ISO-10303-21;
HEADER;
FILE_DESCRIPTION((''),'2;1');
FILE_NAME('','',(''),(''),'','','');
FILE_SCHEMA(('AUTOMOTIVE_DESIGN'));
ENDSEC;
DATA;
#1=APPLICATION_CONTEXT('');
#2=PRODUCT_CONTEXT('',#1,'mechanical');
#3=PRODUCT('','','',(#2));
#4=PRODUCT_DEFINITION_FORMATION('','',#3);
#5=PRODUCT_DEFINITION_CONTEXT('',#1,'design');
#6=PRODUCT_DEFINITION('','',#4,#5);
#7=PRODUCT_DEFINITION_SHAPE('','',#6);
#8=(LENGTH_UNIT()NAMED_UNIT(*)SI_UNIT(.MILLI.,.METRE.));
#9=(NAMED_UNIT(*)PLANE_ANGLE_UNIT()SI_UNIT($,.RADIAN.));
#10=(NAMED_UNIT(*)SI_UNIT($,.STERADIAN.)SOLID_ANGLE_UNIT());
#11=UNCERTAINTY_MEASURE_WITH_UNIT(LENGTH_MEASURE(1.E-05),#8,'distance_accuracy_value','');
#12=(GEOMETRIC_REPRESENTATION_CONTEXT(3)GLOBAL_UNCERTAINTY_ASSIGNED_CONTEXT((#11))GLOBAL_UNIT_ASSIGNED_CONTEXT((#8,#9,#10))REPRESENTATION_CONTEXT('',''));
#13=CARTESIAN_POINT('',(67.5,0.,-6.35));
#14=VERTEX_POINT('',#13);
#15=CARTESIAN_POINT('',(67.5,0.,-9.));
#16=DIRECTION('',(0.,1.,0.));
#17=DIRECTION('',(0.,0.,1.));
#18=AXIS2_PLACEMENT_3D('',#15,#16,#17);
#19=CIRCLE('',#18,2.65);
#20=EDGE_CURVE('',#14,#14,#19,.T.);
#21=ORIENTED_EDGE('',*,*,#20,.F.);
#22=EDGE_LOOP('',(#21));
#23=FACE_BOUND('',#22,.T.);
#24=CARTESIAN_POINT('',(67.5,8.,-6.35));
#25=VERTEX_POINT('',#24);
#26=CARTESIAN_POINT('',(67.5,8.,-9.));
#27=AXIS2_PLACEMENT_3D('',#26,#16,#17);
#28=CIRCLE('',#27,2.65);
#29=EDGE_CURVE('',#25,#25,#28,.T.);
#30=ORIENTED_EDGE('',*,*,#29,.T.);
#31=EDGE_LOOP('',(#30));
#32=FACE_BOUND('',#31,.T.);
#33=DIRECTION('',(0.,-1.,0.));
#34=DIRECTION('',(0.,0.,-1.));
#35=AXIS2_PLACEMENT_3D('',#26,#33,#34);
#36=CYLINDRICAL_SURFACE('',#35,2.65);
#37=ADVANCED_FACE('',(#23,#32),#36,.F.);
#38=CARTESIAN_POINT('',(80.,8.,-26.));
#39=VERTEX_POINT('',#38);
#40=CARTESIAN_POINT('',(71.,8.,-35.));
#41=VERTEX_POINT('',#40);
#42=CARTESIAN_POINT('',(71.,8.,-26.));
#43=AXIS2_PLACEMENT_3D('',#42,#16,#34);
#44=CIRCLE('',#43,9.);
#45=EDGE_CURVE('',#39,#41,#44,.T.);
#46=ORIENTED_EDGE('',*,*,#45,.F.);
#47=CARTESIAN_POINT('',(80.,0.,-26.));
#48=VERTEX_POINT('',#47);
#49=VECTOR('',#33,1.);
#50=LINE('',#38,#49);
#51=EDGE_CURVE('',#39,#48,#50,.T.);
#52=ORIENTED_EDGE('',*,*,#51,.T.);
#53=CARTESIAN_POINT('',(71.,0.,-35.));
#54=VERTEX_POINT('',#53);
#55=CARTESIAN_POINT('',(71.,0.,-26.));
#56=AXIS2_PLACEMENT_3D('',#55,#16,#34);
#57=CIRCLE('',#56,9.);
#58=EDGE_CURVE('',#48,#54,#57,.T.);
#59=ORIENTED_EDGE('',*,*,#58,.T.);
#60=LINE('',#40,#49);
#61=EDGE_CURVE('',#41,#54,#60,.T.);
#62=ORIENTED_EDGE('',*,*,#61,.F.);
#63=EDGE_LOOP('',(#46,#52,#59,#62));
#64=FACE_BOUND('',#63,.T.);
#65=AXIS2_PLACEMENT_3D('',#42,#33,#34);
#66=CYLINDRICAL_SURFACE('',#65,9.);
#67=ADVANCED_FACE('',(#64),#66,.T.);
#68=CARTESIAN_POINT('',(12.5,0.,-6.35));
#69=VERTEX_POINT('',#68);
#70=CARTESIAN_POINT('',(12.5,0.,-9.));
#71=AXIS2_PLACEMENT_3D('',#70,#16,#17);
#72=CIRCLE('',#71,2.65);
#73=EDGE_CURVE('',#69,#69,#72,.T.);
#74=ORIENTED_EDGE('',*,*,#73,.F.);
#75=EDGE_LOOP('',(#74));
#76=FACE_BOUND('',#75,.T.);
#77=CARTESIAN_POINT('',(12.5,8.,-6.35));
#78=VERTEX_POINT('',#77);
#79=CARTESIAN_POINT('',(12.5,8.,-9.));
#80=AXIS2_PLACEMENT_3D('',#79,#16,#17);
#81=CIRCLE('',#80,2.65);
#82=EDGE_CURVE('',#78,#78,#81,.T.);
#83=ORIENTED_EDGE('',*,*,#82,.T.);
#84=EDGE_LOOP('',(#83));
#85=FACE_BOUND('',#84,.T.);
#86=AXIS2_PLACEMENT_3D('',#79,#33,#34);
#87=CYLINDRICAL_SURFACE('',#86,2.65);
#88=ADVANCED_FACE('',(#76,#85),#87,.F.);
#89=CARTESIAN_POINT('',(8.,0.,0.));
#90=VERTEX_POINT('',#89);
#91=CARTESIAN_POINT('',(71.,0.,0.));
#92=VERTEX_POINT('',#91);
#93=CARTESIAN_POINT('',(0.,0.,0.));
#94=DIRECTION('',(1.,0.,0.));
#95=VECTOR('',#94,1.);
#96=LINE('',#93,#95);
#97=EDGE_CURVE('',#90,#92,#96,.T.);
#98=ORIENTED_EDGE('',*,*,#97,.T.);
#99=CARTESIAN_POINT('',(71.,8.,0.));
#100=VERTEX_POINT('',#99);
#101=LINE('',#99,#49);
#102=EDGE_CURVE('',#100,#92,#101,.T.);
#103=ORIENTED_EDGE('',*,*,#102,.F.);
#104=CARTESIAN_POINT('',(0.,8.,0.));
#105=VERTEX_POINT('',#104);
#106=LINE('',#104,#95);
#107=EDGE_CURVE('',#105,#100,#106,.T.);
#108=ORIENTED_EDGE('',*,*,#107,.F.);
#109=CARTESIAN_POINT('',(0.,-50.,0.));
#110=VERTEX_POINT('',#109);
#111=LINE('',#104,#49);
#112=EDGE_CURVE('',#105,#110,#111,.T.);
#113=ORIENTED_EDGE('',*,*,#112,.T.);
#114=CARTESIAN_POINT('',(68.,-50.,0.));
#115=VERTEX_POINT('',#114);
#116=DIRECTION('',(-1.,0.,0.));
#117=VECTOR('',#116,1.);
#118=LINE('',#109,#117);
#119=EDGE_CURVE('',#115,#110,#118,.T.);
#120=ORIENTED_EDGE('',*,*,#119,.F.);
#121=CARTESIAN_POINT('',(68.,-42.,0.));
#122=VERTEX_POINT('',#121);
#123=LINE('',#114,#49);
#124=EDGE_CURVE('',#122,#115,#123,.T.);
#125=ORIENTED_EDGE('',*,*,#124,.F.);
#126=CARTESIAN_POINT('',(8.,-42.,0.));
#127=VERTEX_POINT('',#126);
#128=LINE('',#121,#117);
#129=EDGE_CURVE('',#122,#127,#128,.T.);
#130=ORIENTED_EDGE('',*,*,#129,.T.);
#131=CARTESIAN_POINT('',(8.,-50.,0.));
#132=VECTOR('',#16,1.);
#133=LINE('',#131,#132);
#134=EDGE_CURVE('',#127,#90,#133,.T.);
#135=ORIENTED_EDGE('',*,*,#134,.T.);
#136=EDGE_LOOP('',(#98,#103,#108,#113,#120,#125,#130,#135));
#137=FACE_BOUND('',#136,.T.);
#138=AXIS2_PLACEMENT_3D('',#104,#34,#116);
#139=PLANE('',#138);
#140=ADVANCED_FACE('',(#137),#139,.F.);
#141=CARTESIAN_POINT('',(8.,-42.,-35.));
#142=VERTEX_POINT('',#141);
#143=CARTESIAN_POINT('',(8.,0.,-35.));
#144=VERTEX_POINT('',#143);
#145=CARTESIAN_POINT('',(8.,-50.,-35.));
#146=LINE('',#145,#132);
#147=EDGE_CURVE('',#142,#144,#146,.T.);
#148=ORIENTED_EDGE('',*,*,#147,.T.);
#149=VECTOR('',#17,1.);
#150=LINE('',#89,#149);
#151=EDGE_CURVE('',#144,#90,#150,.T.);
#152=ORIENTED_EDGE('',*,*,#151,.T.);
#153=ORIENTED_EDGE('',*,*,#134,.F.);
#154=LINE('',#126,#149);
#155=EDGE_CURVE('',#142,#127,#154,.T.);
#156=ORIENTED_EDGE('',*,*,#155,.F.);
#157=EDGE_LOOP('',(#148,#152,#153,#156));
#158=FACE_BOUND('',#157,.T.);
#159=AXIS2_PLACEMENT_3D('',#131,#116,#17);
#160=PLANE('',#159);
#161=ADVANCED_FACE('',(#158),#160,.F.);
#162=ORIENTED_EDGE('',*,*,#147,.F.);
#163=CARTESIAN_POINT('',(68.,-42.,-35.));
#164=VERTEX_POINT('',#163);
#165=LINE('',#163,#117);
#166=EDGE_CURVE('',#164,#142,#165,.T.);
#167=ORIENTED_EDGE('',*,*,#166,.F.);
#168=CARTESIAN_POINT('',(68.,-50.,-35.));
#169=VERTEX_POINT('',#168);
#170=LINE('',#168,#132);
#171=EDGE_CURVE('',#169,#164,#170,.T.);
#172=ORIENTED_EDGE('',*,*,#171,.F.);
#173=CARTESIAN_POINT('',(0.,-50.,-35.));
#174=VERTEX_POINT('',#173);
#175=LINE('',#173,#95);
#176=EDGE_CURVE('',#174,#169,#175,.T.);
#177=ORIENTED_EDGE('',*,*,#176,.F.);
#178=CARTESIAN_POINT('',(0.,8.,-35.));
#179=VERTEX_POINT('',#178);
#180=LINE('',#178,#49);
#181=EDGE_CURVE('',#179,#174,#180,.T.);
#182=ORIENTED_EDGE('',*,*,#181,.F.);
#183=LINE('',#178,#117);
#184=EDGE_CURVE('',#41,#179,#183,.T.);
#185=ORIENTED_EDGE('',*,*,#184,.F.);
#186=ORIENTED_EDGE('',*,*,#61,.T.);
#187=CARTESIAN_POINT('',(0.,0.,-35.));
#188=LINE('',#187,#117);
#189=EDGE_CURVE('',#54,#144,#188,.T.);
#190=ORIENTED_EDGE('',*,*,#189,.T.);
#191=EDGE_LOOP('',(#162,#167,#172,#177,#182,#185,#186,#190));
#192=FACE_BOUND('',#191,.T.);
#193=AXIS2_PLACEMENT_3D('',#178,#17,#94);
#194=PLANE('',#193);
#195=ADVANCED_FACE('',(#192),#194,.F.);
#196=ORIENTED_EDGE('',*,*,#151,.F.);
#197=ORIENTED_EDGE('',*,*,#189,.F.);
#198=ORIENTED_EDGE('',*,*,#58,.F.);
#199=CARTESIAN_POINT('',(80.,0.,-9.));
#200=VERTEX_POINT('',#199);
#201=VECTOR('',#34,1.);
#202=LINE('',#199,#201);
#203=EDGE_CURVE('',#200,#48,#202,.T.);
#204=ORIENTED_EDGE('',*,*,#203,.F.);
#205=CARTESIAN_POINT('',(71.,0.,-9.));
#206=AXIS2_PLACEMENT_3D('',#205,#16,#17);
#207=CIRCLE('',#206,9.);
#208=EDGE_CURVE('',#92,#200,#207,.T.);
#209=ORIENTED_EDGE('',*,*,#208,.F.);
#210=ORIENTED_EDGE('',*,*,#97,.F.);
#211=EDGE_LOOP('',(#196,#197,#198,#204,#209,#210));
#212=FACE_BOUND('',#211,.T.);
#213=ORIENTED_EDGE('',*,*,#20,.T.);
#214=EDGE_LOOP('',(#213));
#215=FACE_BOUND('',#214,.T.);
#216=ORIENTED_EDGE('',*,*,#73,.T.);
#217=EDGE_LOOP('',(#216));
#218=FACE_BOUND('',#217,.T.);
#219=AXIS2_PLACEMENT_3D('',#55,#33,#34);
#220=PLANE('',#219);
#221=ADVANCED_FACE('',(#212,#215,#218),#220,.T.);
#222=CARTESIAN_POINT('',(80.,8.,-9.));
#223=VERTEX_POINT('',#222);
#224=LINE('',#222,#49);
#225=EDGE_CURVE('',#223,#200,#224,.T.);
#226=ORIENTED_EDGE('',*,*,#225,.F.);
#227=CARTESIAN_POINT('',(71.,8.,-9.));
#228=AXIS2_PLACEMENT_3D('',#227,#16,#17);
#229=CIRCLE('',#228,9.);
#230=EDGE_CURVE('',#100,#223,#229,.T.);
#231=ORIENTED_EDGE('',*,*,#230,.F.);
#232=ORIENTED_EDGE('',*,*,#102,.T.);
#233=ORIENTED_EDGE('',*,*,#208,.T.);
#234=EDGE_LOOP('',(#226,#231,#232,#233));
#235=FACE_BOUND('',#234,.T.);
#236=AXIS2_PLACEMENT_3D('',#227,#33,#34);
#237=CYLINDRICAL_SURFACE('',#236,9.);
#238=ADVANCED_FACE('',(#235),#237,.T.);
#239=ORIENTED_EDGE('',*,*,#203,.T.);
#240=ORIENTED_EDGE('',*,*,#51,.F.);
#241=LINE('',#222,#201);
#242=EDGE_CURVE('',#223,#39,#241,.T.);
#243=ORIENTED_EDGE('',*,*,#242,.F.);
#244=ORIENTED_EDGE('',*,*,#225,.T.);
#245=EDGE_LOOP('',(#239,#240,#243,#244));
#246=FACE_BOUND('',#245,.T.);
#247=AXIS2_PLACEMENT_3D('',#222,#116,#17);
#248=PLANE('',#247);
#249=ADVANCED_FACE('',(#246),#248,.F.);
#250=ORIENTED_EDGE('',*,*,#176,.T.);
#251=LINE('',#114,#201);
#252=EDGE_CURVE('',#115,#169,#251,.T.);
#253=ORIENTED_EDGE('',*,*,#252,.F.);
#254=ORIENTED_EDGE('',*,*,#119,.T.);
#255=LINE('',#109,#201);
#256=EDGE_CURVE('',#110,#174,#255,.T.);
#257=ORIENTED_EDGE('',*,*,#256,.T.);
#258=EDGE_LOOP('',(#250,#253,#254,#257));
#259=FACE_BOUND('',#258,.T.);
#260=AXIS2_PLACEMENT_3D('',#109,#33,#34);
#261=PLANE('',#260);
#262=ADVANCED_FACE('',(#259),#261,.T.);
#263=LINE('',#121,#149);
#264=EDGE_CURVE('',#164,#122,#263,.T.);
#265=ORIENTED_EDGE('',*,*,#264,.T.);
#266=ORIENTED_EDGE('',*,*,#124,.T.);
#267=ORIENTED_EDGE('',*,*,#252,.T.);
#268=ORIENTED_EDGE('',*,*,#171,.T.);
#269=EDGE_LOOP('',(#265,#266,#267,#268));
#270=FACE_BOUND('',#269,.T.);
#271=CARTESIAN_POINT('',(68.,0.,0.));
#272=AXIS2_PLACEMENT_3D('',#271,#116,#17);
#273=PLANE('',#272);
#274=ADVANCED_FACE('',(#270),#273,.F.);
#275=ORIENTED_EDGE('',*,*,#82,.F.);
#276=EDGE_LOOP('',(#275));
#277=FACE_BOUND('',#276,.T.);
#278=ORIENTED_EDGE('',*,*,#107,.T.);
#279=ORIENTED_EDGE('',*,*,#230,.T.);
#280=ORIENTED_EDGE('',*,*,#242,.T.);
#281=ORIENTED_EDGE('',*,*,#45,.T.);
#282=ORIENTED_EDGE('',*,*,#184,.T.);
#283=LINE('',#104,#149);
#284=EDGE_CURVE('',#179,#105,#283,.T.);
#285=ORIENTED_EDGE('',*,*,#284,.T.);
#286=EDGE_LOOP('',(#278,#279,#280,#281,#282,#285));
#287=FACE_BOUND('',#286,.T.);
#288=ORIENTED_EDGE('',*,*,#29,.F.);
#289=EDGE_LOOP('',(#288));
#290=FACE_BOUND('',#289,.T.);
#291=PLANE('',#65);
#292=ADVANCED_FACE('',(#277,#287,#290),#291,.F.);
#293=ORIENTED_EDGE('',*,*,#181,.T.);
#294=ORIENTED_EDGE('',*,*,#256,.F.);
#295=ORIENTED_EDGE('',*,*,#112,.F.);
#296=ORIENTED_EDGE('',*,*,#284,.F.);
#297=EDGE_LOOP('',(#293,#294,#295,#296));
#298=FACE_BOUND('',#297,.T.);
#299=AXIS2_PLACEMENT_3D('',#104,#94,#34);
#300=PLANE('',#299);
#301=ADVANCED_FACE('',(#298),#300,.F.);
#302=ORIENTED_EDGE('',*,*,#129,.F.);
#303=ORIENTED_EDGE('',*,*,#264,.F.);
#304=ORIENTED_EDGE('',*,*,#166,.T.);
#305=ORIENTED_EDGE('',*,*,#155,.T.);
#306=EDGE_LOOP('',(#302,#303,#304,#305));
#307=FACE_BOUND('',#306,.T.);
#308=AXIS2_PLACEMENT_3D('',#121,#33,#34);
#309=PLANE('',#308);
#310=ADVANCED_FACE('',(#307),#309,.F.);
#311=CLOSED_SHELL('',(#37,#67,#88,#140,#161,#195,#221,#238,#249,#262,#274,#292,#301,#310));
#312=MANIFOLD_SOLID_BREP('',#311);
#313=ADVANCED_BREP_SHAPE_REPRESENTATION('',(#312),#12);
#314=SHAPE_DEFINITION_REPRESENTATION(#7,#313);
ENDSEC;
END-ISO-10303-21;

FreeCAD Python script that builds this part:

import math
import FreeCAD as App
import Part
import Sketcher

V = App.Vector


def add_polygon(sketch, points):
    """Adds a closed chain of lines whose ends are joined by coincident constraints."""
    first, n = sketch.GeometryCount, len(points)
    for a, b in zip(points, points[1:] + points[:1]):
        sketch.addGeometry(Part.LineSegment(App.Vector(*a, 0), App.Vector(*b, 0)), False)
    for i in range(n):
        sketch.addConstraint(Sketcher.Constraint("Coincident", first + i, 2, first + (i + 1) % n, 1))

doc = App.newDocument("Part")
body = doc.addObject("PartDesign::Body", "Body")

sketch1 = body.newObject("Sketcher::SketchObject", "Sketch")
sketch1.AttachmentSupport = (doc.getObject("XZ_Plane"), [""])
sketch1.MapMode = "FlatFace"
sketch1.addGeometry([
    Part.LineSegment(V(0, 0, 0), V(71, 0, 0)),
    Part.ArcOfCircle(Part.Circle(V(71, -9, 0), V(0, 0, 1), 9), math.radians(0), math.radians(90)),
    Part.LineSegment(V(80, -9, 0), V(80, -26, 0)),
    Part.ArcOfCircle(Part.Circle(V(71, -26, 0), V(0, 0, 1), 9), math.radians(-90), math.radians(0)),
    Part.LineSegment(V(71, -35, 0), V(0, -35, 0)),
    Part.LineSegment(V(0, -35, 0), V(0, 0, 0)),
    Part.Circle(V(12.5, -9, 0), V(0, 0, 1), 2.65),
    Part.Circle(V(67.5, -9, 0), V(0, 0, 1), 2.65),
], False)
sketch1.addConstraint([
    Sketcher.Constraint("Tangent", 0, 2, 1, 2),
    Sketcher.Constraint("Tangent", 1, 1, 2, 1),
    Sketcher.Constraint("Tangent", 2, 2, 3, 2),
    Sketcher.Constraint("Tangent", 3, 1, 4, 1),
    Sketcher.Constraint("Coincident", 4, 2, 5, 1),
    Sketcher.Constraint("Coincident", 5, 2, 0, 1),
    Sketcher.Constraint("Horizontal", 0),
    Sketcher.Constraint("Vertical", 2),
    Sketcher.Constraint("Horizontal", 4),
    Sketcher.Constraint("Vertical", 5),
    Sketcher.Constraint("Coincident", 5, 2, -1, 1),
    Sketcher.Constraint("Equal", 1, 3),
    Sketcher.Constraint("Equal", 6, 7),
    Sketcher.Constraint("Horizontal", 1, 3, 6, 3),
    Sketcher.Constraint("Horizontal", 6, 3, 7, 3),
    Sketcher.Constraint("Radius", 1, 9.0),
    Sketcher.Constraint("Diameter", 6, 5.3),
    Sketcher.Constraint("DistanceX", 0, 1, 0, 2, 71.0),
    Sketcher.Constraint("DistanceY", 2, 2, 2, 1, 17.0),
    Sketcher.Constraint("DistanceX", 6, 3, 7, 3, 55.0),
    Sketcher.Constraint("DistanceX", -1, 1, 6, 3, 12.5),
])
pad1 = body.newObject("PartDesign::Pad", "Pad")
pad1.Profile = sketch1
pad1.Length = 8
pad1.Reversed = True

sketch2 = body.newObject("Sketcher::SketchObject", "Sketch001")
sketch2.AttachmentSupport = (doc.getObject("XZ_Plane"), [""])
sketch2.MapMode = "FlatFace"
add_polygon(sketch2, [(0, 0), (0, -35), (8, -35), (8, 0)])
sketch2.addConstraint([
    Sketcher.Constraint("Vertical", 0),
    Sketcher.Constraint("Horizontal", 1),
    Sketcher.Constraint("Vertical", 2),
    Sketcher.Constraint("Horizontal", 3),
    Sketcher.Constraint("Coincident", 3, 2, -1, 1),
    Sketcher.Constraint("DistanceX", 1, 1, 1, 2, 8.0),
    Sketcher.Constraint("DistanceY", 0, 2, 0, 1, 35.0),
])
pad2 = body.newObject("PartDesign::Pad", "Pad001")
pad2.Profile = sketch2
pad2.Length = 50

sketch3 = body.newObject("Sketcher::SketchObject", "Sketch002")
sketch3.AttachmentSupport = (doc.getObject("YZ_Plane"), [""])
sketch3.MapMode = "FlatFace"
sketch3.AttachmentOffset = App.Placement(V(0, 0, 8), App.Rotation())
add_polygon(sketch3, [(-42, 0), (-50, 0), (-50, -35), (-42, -35)])
sketch3.addConstraint([
    Sketcher.Constraint("Horizontal", 0),
    Sketcher.Constraint("Vertical", 1),
    Sketcher.Constraint("Horizontal", 2),
    Sketcher.Constraint("Vertical", 3),
    Sketcher.Constraint("PointOnObject", 0, 2, -1),
    Sketcher.Constraint("DistanceX", 0, 2, 0, 1, 8.0),
    Sketcher.Constraint("DistanceY", 1, 2, 1, 1, 35.0),
    Sketcher.Constraint("DistanceX", 0, 2, -1, 1, 50.0),
])
pad3 = body.newObject("PartDesign::Pad", "Pad002")
pad3.Profile = sketch3
pad3.Length = 60

doc.recompute()
